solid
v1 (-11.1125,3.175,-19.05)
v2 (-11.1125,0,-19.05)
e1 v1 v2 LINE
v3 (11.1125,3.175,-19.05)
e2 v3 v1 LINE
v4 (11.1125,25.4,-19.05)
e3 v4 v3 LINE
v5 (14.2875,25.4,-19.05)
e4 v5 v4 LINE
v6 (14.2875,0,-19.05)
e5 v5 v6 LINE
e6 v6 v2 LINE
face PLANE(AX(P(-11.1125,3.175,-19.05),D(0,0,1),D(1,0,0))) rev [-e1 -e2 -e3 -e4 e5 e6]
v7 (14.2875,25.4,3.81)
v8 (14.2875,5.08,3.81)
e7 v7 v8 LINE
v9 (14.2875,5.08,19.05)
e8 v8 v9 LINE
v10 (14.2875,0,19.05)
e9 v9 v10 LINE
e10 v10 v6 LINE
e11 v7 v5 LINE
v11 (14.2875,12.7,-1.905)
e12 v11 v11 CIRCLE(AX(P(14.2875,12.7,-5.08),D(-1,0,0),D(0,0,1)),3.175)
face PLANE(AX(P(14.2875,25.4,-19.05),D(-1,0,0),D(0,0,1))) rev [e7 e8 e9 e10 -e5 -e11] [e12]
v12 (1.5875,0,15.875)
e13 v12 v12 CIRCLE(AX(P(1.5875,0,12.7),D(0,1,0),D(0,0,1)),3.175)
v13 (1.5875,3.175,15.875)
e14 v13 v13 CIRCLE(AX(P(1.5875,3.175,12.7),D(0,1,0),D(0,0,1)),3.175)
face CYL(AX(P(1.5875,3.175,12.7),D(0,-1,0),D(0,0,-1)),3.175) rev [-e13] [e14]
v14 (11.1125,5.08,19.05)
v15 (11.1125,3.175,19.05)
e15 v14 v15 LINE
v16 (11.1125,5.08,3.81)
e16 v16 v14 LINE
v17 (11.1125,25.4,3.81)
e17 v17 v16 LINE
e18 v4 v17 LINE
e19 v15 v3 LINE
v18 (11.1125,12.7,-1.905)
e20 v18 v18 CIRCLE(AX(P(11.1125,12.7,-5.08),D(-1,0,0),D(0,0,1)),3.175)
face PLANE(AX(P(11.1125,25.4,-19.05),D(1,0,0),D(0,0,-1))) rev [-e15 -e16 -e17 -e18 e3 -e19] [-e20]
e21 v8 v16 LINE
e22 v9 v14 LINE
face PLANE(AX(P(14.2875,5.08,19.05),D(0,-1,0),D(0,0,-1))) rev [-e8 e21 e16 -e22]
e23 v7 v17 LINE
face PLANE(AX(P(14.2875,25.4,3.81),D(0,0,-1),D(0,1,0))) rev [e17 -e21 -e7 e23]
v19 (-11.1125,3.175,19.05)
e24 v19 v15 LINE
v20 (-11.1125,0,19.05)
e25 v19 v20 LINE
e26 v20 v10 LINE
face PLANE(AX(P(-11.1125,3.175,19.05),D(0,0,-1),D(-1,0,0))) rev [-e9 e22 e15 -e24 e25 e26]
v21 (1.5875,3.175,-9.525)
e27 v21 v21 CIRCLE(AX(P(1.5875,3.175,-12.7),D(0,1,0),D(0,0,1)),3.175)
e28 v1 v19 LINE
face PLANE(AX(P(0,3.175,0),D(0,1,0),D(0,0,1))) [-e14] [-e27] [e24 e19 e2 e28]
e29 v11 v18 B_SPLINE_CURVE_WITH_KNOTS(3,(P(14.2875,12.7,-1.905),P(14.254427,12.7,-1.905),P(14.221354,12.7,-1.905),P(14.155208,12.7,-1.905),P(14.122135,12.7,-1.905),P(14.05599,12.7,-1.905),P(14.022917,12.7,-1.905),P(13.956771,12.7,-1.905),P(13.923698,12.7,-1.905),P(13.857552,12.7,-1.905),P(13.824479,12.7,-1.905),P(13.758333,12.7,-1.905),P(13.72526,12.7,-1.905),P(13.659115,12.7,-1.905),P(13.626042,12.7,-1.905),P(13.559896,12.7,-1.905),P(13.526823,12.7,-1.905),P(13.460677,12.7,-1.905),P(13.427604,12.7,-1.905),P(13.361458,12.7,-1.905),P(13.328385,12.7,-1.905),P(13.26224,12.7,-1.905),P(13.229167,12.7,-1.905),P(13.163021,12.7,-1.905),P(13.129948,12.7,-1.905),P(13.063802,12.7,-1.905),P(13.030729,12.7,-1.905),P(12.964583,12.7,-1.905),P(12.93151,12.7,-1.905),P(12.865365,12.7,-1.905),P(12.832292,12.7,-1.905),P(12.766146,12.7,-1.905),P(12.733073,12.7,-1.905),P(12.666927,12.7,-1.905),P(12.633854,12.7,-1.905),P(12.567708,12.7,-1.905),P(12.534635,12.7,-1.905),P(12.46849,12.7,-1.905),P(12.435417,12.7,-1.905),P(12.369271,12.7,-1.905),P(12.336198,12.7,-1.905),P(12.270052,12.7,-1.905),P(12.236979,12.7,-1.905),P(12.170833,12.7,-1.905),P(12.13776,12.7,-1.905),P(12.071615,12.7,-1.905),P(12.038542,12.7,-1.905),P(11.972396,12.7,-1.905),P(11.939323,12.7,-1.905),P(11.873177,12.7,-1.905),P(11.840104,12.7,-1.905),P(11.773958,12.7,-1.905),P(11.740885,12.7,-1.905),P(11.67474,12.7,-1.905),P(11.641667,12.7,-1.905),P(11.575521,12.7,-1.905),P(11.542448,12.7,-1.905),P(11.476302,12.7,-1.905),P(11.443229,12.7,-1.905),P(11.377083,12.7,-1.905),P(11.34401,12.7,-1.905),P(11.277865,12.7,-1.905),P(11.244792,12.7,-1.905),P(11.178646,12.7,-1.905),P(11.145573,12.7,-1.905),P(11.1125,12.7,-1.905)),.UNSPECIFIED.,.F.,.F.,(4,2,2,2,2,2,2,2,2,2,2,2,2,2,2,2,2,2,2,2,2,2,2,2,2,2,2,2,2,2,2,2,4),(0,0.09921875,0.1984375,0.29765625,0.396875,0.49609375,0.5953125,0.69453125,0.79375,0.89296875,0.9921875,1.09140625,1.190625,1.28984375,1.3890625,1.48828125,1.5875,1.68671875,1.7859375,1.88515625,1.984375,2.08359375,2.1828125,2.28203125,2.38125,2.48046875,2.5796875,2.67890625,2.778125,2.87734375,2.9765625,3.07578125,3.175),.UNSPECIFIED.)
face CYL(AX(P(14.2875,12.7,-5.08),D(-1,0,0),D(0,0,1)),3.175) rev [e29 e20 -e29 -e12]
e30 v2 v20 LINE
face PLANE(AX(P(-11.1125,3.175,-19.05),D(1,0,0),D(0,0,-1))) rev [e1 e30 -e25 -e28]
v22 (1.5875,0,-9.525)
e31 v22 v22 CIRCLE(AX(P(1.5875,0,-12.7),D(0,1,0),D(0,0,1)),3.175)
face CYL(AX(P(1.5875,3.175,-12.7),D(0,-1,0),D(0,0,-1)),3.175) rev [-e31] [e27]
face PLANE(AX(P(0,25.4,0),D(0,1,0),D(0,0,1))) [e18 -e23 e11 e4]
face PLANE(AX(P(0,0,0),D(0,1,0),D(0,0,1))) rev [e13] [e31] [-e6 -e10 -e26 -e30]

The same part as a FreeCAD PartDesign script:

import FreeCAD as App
import Part
import Sketcher

V = App.Vector
Q = App.Units.Quantity


def add_polygon(sketch, points):
    """Adds a closed chain of lines whose ends are joined by coincident constraints."""
    first, n = sketch.GeometryCount, len(points)
    for a, b in zip(points, points[1:] + points[:1]):
        sketch.addGeometry(Part.LineSegment(App.Vector(*a, 0), App.Vector(*b, 0)), False)
    for i in range(n):
        sketch.addConstraint(Sketcher.Constraint("Coincident", first + i, 2, first + (i + 1) % n, 1))

doc = App.newDocument("Part")
body = doc.addObject("PartDesign::Body", "Body")

# Sketch on XZ plane
sketch1 = body.newObject("Sketcher::SketchObject", "Sketch")
sketch1.AttachmentSupport = (doc.getObject("XZ_Plane"), [""])
sketch1.MapMode = "FlatFace"
add_polygon(sketch1, [(-11.1, -19.1), (-11.1, 19.1), (11.1, 19.1), (11.1, -19.1)])  # lines 0-3
sketch1.addGeometry(Part.Circle(V(1.6, 12.7, 0), V(0, 0, 1), 3.2), False)  # 4
sketch1.addGeometry(Part.Circle(V(1.6, -12.7, 0), V(0, 0, 1), 3.2), False)  # 5
sketch1.addConstraint([
    Sketcher.Constraint("Vertical", 0),
    Sketcher.Constraint("Horizontal", 1),
    Sketcher.Constraint("Vertical", 2),
    Sketcher.Constraint("Horizontal", 3),
    Sketcher.Constraint("Equal", 4, 5),
    Sketcher.Constraint("Symmetric", 0, 2, 2, 2, -1, 1),
    Sketcher.Constraint("Symmetric", 4, 3, 5, 3, -1),
    Sketcher.Constraint("Diameter", 4, Q("0.25 in")),
    Sketcher.Constraint("DistanceY", 0, 1, 0, 2, Q("1.5 in")),
    Sketcher.Constraint("DistanceY", 5, 3, 4, 3, Q("1 in")),
    Sketcher.Constraint("DistanceX", 0, 2, 4, 3, Q("0.5 in")),
    Sketcher.Constraint("DistanceX", 1, 1, 1, 2, Q("0.875 in")),
])
pad1 = body.newObject("PartDesign::Pad", "Pad")
pad1.Profile = sketch1
pad1.Length = Q("0.125 in")
pad1.Reversed = True

# Sketch on XZ plane
sketch2 = body.newObject("Sketcher::SketchObject", "Sketch001")
sketch2.AttachmentSupport = (doc.getObject("XZ_Plane"), [""])
sketch2.MapMode = "FlatFace"
add_polygon(sketch2, [(11.1, -19.1), (11.1, 19.1), (14.3, 19.1), (14.3, -19.1)])  # lines 0-3
sketch2.addConstraint([
    Sketcher.Constraint("Vertical", 0),
    Sketcher.Constraint("Horizontal", 1),
    Sketcher.Constraint("Vertical", 2),
    Sketcher.Constraint("Horizontal", 3),
    Sketcher.Constraint("DistanceY", 0, 1, 0, 2, Q("1.5 in")),
    Sketcher.Constraint("DistanceX", 1, 1, 1, 2, Q("0.125 in")),
    Sketcher.Constraint("DistanceY", -1, 1, 0, 2, Q("0.75 in")),
    Sketcher.Constraint("DistanceX", -1, 1, 0, 2, Q("0.4375 in")),
])
pad2 = body.newObject("PartDesign::Pad", "Pad001")
pad2.Profile = sketch2
pad2.Length = Q("1 in")
pad2.Reversed = True

# Sketch on YZ plane
sketch3 = body.newObject("Sketcher::SketchObject", "Sketch002")
sketch3.AttachmentSupport = (doc.getObject("YZ_Plane"), [""])
sketch3.MapMode = "FlatFace"
sketch3.AttachmentOffset = App.Placement(V(0, 0, 0.4375 * 25.4), App.Rotation())
sketch3.addGeometry(Part.Circle(V(12.7, -5.1, 0), V(0, 0, 1), 3.2), False)  # 0
add_polygon(sketch3, [(25.4, 3.8), (5.1, 3.8), (5.1, 19.1), (25.4, 19.1)])  # lines 1-4
sketch3.addConstraint([
    Sketcher.Constraint("Horizontal", 1),
    Sketcher.Constraint("Vertical", 2),
    Sketcher.Constraint("Horizontal", 3),
    Sketcher.Constraint("Vertical", 4),
    Sketcher.Constraint("Diameter", 0, Q("0.25 in")),
    Sketcher.Constraint("DistanceX", 1, 2, 1, 1, Q("0.8 in")),
    Sketcher.Constraint("DistanceY", 2, 1, 2, 2, Q("0.6 in")),
    Sketcher.Constraint("DistanceX", -1, 1, 3, 2, Q("1 in")),
    Sketcher.Constraint("DistanceX", -1, 1, 0, 3, Q("0.5 in")),
    Sketcher.Constraint("DistanceY", 0, 3, -1, 1, Q("0.2 in")),
    Sketcher.Constraint("DistanceY", -1, 1, 1, 2, Q("0.15 in")),
])
pocket1 = body.newObject("PartDesign::Pocket", "Pocket")
pocket1.Profile = sketch3
pocket1.Type = "ThroughAll"
pocket1.Reversed = True

doc.recompute()
